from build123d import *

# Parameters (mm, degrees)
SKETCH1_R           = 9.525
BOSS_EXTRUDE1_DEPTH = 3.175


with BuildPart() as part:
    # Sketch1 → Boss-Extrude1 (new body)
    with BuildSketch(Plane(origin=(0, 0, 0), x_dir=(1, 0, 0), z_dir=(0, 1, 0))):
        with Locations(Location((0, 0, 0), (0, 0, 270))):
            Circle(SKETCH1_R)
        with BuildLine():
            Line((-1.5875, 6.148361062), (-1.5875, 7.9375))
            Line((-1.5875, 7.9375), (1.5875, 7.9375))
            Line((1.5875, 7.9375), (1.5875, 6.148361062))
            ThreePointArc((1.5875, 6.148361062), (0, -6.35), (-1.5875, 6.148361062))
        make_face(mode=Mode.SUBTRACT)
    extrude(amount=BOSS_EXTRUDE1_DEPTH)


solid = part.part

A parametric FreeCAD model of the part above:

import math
import FreeCAD as App
import Part
import Sketcher
from FreeCAD import Vector
Q = App.Units.Quantity

doc = App.newDocument("Part")
body = doc.addObject("PartDesign::Body", "Body")

sketch1 = body.newObject("Sketcher::SketchObject", "Sketch")
sketch1.AttachmentSupport = (doc.getObject("XZ_Plane"), [""])
sketch1.MapMode = "FlatFace"
sketch1.addGeometry(Part.Circle(Vector(0, 0, 0), Vector(0, 0, 1), 9.5), False)
sketch1.addGeometry(Part.ArcOfCircle(Part.Circle(Vector(0, 0, 0), Vector(0, 0, 1), 6.3), math.radians(-76), math.radians(256)), False)
sketch1.addGeometry(Part.LineSegment(Vector(-1.6, -6.1, 0), Vector(-1.6, -7.9, 0)), False)
sketch1.addGeometry(Part.LineSegment(Vector(-1.6, -7.9, 0), Vector(1.6, -7.9, 0)), False)
sketch1.addGeometry(Part.LineSegment(Vector(1.6, -7.9, 0), Vector(1.6, -6.1, 0)), False)
sketch1.addConstraint(Sketcher.Constraint("Coincident", 1, 2, 2, 1))
sketch1.addConstraint(Sketcher.Constraint("Coincident", 2, 2, 3, 1))
sketch1.addConstraint(Sketcher.Constraint("Coincident", 3, 2, 4, 1))
sketch1.addConstraint(Sketcher.Constraint("Coincident", 4, 2, 1, 1))
sketch1.addConstraint(Sketcher.Constraint("Vertical", 2))
sketch1.addConstraint(Sketcher.Constraint("Horizontal", 3))
sketch1.addConstraint(Sketcher.Constraint("Vertical", 4))
sketch1.addConstraint(Sketcher.Constraint("Coincident", 0, 3, -1, 1))
sketch1.addConstraint(Sketcher.Constraint("Coincident", 1, 3, -1, 1))
sketch1.addConstraint(Sketcher.Constraint("Horizontal", 1, 2, 4, 2))
sketch1.addConstraint(Sketcher.Constraint("Diameter", 0, Q("0.75 in")))
sketch1.addConstraint(Sketcher.Constraint("Radius", 1, Q("0.25 in")))
sketch1.addConstraint(Sketcher.Constraint("DistanceX", 3, 1, 3, 2, Q("0.125 in")))
sketch1.addConstraint(Sketcher.Constraint("DistanceY", 2, 2, -1, 1, Q("0.3125 in")))
pad1 = body.newObject("PartDesign::Pad", "Pad")
pad1.Profile = sketch1
pad1.Length = Q("0.125 in")
pad1.Reversed = True

doc.recompute()
